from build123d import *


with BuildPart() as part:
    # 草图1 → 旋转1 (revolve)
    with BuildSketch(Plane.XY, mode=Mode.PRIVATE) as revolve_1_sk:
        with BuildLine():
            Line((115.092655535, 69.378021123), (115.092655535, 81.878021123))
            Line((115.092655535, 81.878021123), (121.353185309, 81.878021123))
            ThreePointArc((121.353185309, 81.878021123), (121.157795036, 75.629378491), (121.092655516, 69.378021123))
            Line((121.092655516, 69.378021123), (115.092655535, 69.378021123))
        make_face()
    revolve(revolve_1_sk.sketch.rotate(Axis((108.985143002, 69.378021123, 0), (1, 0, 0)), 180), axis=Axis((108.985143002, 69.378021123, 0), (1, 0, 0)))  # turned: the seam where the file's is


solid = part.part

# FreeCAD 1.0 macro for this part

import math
import FreeCAD as App
import Part
import Sketcher

doc = App.newDocument("Part")
body = doc.addObject("PartDesign::Body", "Body")

# Sketch on XY plane
sketch1 = body.newObject("Sketcher::SketchObject", "Sketch")
sketch1.AttachmentSupport = (doc.getObject("XY_Plane"), [""])
sketch1.MapMode = "FlatFace"
sketch1.addGeometry([
    Part.LineSegment(App.Vector(115, 82, 0), App.Vector(115, 69, 0)),
    Part.LineSegment(App.Vector(115, 69, 0), App.Vector(121, 69, 0)),
    Part.ArcOfCircle(Part.Circle(App.Vector(421, 69, 0), App.Vector(0, 0, 1), 300), math.radians(177.61), math.radians(180)),
    Part.LineSegment(App.Vector(121, 82, 0), App.Vector(115, 82, 0)),
], False)
sketch1.addGeometry(Part.LineSegment(App.Vector(115, 69, 0), App.Vector(421, 69, 0)), True)  # axis
sketch1.addConstraint([
    Sketcher.Constraint("Coincident", 0, 2, 1, 1),
    Sketcher.Constraint("Coincident", 1, 2, 2, 2),
    Sketcher.Constraint("Coincident", 2, 1, 3, 1),
    Sketcher.Constraint("Coincident", 3, 2, 0, 1),
    Sketcher.Constraint("Vertical", 0),
    Sketcher.Constraint("Horizontal", 1),
    Sketcher.Constraint("Horizontal", 3),
    Sketcher.Constraint("Horizontal", 4),
    Sketcher.Constraint("Coincident", 4, 1, 0, 2),
    Sketcher.Constraint("Coincident", 4, 2, 2, 3),
    Sketcher.Constraint("Radius", 2, 299.999999),
    Sketcher.Constraint("DistanceX", 1, 1, 1, 2, 6.0),
    Sketcher.Constraint("DistanceY", 0, 2, 0, 1, 12.5),
    Sketcher.Constraint("DistanceY", -1, 1, 2, 3, 69.378021),
    Sketcher.Constraint("DistanceX", -1, 1, 2, 3, 421.092655),
])
revolution = body.newObject("PartDesign::Revolution", "Revolution")
revolution.Profile = sketch1
revolution.ReferenceAxis = (sketch1, ["Axis0"])
revolution.Angle = 360

doc.recompute()
